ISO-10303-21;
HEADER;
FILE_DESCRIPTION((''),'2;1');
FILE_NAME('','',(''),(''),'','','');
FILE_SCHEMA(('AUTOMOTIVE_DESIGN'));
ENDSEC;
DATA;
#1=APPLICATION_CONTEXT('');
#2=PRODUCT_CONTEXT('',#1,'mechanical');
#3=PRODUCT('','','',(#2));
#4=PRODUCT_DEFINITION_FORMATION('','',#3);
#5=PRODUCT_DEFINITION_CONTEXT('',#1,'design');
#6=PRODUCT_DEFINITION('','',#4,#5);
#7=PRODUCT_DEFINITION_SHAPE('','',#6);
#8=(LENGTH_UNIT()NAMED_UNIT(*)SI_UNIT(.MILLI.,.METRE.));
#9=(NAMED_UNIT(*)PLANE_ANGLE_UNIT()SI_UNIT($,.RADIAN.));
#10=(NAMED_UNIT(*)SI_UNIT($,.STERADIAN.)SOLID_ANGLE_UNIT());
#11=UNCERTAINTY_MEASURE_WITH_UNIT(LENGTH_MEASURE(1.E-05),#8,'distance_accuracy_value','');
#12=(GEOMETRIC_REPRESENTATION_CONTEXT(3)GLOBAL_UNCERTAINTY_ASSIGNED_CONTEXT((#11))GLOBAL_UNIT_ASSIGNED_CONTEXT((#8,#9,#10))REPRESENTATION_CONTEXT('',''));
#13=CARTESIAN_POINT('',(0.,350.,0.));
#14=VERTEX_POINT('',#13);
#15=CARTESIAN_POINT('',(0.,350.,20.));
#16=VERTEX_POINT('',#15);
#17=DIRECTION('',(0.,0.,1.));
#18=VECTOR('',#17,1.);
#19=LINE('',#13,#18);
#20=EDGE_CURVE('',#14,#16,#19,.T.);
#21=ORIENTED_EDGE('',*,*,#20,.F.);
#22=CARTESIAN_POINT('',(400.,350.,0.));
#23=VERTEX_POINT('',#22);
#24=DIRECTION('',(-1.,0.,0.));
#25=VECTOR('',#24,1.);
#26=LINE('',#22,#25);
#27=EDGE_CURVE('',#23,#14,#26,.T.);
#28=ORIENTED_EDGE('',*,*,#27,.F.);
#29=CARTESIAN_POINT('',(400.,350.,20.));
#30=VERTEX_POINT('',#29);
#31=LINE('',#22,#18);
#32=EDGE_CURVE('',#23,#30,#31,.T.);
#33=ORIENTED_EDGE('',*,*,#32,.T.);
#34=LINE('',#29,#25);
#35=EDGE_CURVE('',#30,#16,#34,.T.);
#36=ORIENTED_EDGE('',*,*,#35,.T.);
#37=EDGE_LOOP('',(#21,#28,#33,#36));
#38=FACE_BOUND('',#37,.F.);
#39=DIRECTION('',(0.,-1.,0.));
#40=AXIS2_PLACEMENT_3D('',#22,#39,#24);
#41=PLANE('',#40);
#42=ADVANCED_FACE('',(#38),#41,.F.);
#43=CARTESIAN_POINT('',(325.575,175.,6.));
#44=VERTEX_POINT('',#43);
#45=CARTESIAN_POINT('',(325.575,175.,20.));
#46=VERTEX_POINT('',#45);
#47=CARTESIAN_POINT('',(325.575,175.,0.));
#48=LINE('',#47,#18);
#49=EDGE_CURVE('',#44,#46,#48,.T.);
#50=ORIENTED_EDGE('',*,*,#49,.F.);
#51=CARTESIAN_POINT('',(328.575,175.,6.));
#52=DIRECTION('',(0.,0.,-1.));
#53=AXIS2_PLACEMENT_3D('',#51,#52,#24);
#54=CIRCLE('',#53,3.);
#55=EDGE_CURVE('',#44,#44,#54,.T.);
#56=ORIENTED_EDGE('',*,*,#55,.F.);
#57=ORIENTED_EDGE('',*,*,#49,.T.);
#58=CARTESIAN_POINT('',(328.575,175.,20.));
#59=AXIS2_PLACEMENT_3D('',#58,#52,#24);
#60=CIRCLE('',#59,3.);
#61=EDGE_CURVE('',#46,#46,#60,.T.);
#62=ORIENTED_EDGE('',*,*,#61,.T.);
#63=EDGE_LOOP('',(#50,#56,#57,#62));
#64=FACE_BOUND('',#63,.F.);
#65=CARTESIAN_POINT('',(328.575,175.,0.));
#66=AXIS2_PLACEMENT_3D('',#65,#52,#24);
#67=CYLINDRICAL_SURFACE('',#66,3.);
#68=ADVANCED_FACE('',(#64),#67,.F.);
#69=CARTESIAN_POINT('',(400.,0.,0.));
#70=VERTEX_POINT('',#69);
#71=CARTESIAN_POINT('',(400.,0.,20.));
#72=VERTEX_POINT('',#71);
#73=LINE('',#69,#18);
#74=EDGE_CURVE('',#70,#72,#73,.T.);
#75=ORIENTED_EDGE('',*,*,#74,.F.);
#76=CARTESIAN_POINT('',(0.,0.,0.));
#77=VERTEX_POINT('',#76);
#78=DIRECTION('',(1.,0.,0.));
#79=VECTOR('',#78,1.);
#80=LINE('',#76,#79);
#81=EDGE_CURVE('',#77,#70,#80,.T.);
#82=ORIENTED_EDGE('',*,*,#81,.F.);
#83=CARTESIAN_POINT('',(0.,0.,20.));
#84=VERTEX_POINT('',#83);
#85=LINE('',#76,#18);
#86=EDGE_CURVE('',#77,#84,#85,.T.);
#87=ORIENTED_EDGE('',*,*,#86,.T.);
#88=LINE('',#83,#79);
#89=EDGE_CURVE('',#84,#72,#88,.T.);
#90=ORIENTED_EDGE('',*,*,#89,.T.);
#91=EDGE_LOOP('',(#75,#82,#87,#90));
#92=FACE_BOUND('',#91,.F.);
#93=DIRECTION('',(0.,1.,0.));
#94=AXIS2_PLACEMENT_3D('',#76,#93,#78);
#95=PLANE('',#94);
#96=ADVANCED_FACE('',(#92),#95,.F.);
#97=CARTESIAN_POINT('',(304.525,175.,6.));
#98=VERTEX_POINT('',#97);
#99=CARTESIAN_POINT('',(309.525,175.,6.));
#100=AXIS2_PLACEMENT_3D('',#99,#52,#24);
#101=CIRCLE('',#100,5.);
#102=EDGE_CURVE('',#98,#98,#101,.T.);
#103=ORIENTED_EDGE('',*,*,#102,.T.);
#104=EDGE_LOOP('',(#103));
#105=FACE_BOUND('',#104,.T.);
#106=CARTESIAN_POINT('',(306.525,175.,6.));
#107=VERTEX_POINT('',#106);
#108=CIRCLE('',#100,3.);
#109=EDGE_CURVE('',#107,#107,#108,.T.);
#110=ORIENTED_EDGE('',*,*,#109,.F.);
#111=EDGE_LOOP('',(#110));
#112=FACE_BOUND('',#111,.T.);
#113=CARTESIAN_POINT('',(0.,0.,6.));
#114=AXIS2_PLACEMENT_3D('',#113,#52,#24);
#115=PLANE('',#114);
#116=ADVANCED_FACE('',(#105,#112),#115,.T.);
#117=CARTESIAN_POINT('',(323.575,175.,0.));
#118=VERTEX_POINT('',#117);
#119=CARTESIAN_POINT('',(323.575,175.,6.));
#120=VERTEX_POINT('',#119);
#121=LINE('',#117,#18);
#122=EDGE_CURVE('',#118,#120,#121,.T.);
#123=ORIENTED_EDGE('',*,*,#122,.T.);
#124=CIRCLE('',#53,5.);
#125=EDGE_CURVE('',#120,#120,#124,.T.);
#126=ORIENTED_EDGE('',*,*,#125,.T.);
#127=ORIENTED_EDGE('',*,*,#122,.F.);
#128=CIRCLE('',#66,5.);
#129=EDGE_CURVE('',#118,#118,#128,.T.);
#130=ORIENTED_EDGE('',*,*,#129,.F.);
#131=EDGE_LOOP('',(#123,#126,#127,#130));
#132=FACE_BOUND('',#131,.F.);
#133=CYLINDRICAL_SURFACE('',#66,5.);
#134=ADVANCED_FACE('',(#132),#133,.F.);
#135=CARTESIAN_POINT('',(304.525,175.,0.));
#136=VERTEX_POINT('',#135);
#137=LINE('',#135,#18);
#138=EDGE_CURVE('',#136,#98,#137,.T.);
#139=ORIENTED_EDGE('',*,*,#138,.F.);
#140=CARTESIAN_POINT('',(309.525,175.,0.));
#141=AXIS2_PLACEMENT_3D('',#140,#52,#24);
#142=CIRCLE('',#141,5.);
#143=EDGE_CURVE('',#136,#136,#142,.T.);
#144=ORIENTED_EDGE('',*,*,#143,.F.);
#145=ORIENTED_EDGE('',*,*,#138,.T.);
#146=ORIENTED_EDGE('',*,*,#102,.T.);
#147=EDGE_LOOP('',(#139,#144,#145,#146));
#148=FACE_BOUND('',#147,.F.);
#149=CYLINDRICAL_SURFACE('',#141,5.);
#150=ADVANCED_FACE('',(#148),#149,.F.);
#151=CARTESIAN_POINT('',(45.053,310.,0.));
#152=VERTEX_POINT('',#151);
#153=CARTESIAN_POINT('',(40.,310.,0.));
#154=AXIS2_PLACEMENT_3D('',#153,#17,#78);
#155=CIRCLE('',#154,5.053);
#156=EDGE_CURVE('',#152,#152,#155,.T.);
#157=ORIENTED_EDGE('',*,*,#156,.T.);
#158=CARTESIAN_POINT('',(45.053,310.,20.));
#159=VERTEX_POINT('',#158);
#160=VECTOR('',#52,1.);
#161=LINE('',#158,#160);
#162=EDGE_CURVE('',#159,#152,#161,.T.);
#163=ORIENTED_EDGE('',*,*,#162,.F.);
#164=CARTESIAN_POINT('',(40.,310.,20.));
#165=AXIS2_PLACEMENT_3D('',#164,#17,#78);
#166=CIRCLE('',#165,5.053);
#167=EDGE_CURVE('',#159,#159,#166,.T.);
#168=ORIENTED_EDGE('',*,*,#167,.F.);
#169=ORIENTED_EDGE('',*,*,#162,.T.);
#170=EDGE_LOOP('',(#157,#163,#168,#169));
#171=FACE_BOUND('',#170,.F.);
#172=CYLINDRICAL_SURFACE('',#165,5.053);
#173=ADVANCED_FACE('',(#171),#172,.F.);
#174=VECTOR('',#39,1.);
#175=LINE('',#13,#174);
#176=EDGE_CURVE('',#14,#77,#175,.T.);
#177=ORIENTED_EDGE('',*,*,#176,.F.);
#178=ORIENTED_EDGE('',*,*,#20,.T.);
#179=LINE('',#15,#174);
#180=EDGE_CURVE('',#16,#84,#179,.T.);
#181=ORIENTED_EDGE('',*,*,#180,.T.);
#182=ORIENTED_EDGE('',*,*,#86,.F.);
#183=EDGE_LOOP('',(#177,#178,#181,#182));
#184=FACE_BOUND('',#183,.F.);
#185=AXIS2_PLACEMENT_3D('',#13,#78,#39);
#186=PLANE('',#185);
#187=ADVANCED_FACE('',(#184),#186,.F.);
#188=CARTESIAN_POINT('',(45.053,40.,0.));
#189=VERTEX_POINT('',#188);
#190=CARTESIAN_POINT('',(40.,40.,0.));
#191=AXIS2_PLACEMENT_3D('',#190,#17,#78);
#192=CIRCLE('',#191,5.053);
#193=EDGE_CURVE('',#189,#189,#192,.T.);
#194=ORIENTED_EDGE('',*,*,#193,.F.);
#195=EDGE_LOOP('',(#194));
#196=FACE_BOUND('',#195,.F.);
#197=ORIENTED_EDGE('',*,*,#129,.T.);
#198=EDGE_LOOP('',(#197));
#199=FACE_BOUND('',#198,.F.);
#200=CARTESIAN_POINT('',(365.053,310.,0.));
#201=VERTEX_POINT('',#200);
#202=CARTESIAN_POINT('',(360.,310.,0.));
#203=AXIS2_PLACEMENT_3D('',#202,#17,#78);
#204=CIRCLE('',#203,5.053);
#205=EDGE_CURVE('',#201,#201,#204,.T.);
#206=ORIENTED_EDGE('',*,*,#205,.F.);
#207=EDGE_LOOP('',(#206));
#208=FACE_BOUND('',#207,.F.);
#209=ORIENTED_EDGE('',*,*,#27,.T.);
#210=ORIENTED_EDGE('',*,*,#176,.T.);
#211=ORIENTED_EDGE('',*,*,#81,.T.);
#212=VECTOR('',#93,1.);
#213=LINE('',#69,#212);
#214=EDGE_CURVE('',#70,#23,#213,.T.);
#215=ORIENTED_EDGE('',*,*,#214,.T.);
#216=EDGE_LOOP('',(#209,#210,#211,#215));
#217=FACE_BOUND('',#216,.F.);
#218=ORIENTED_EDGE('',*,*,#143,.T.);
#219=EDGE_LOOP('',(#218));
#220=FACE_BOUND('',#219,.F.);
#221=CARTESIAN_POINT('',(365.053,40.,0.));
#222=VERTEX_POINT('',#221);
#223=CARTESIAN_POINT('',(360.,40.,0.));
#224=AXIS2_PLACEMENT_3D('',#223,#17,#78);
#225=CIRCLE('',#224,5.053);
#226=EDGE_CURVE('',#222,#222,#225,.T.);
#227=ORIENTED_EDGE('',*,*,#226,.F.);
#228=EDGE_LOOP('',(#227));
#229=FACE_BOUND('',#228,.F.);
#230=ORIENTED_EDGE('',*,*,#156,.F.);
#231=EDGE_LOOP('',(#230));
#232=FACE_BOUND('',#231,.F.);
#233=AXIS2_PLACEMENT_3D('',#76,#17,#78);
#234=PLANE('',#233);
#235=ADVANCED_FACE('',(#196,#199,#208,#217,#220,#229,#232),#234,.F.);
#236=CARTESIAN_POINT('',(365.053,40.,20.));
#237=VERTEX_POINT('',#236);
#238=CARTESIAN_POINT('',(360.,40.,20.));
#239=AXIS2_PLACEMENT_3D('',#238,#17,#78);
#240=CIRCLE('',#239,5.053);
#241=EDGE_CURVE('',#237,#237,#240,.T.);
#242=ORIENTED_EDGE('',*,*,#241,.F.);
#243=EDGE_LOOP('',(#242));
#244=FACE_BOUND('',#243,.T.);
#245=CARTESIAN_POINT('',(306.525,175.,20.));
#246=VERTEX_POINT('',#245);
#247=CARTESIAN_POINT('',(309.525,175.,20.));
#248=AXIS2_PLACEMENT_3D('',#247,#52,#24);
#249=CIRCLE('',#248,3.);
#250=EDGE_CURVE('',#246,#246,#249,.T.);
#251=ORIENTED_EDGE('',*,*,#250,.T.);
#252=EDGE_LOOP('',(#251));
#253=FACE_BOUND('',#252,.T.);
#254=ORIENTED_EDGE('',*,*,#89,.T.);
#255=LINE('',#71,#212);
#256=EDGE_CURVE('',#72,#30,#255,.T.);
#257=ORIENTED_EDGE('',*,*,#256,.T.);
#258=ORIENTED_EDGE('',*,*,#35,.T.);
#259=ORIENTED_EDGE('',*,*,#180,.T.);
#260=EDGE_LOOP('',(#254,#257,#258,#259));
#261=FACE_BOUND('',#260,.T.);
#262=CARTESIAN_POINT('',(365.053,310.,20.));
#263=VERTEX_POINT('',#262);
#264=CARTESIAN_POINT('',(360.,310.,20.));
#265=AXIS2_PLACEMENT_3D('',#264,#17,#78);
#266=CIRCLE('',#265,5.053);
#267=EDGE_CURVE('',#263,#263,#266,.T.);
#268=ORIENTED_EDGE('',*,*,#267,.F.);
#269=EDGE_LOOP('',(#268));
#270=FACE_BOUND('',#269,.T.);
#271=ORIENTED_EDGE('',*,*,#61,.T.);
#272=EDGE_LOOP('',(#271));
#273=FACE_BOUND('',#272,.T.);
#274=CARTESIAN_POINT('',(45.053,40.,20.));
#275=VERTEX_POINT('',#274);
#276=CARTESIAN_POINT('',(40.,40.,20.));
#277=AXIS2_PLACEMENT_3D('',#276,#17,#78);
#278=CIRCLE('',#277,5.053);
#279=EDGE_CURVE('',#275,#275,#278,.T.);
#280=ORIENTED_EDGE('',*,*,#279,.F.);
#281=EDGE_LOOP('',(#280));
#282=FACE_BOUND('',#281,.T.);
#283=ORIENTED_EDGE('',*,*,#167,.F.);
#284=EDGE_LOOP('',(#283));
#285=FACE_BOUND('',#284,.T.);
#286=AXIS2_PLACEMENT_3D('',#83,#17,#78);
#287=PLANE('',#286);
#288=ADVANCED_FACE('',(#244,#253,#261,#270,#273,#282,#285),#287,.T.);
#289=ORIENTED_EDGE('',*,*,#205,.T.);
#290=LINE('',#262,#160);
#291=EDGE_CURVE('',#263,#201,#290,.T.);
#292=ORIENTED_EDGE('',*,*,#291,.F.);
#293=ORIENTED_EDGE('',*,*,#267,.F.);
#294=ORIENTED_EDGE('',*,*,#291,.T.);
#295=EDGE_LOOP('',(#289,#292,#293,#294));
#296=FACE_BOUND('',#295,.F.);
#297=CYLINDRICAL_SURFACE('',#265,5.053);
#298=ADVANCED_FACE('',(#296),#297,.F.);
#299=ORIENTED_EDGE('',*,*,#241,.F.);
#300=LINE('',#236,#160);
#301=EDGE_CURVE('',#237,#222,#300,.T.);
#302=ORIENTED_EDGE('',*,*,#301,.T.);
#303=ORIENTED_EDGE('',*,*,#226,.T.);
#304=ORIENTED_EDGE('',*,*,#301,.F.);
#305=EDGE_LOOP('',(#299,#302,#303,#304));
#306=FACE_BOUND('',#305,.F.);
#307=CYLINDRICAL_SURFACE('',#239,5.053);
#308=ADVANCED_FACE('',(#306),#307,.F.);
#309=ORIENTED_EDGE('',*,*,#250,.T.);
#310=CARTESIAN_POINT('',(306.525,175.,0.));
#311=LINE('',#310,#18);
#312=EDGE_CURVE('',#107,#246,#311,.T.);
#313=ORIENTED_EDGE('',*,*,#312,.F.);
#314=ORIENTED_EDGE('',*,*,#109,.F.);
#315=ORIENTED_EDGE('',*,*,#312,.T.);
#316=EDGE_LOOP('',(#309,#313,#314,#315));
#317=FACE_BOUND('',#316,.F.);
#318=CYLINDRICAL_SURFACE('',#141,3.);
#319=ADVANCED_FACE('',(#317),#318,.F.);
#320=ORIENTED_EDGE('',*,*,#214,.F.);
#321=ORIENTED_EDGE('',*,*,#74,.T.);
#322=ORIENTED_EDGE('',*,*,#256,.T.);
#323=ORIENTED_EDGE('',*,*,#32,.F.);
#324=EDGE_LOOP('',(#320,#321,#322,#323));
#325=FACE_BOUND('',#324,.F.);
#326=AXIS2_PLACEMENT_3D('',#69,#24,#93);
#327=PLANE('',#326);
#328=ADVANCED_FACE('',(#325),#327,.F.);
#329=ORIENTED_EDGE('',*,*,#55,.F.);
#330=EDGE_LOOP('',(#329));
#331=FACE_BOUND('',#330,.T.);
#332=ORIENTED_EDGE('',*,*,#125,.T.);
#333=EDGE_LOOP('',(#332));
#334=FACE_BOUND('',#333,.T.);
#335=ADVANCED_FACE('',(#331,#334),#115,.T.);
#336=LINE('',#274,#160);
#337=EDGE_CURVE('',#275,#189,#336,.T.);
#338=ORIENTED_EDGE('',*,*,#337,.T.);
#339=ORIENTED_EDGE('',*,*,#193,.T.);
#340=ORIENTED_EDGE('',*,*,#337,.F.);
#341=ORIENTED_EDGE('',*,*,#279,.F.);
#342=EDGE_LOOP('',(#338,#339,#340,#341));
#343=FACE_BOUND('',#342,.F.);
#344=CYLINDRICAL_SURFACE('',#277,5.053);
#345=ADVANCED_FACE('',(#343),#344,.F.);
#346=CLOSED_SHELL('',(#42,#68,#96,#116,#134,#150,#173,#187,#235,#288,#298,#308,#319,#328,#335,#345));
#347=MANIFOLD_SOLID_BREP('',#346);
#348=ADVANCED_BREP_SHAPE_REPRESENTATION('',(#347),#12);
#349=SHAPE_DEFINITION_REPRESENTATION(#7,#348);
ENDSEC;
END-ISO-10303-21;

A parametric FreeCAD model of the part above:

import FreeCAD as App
import Part
import Sketcher
from FreeCAD import Vector
Q = App.Units.Quantity


def add_polygon(sketch, points):
    """Adds a closed chain of lines whose ends are joined by coincident constraints."""
    first, n = sketch.GeometryCount, len(points)
    for a, b in zip(points, points[1:] + points[:1]):
        sketch.addGeometry(Part.LineSegment(App.Vector(*a, 0), App.Vector(*b, 0)), False)
    for i in range(n):
        sketch.addConstraint(Sketcher.Constraint("Coincident", first + i, 2, first + (i + 1) % n, 1))

doc = App.newDocument("Part")
params = doc.addObject("Spreadsheet::Sheet", "Params")
for row, (alias, value) in enumerate([
    ("sketch1_width", "400 mm"),
    ("sketch1_height", "350 mm"),
    ("pad1_length", "20 mm"),
    ("pocket1_length", "20 mm"),
    ("sketch3_diameter", "6 mm"),
    ("pocket2_length", "20 mm"),
    ("sketch4_diameter", "10 mm"),
    ("sketch4_diameter2", "6 mm"),
    ("pocket3_length", "6 mm"),
], start=1):
    params.set(f"A{row}", alias)
    params.set(f"B{row}", "=" + value)
    params.setAlias(f"B{row}", alias)

body = doc.addObject("PartDesign::Body", "Body")

# Sketch on XY plane
sketch1 = body.newObject("Sketcher::SketchObject", "Sketch")
sketch1.AttachmentSupport = (doc.getObject("XY_Plane"), [""])
sketch1.MapMode = "FlatFace"
add_polygon(sketch1, [(0, 350), (0, 0), (400, 0), (400, 350)])  # lines 0-3
sketch1.addConstraint([
    Sketcher.Constraint("Vertical", 0),
    Sketcher.Constraint("Horizontal", 1),
    Sketcher.Constraint("Vertical", 2),
    Sketcher.Constraint("Horizontal", 3),
    Sketcher.Constraint("Coincident", 0, 2, -1, 1),
    Sketcher.Constraint("DistanceX", 1, 1, 1, 2, Q("400 mm")),
    Sketcher.Constraint("DistanceY", 0, 2, 0, 1, Q("350 mm")),
])
sketch1.setExpression("Constraints[9]", "Params.sketch1_width")
sketch1.setExpression("Constraints[10]", "Params.sketch1_height")
pad1 = body.newObject("PartDesign::Pad", "Pad")
pad1.Profile = sketch1
pad1.setExpression("Length", "Params.pad1_length")

# Sketch on XY plane
sketch2 = body.newObject("Sketcher::SketchObject", "Sketch001")
sketch2.AttachmentSupport = (doc.getObject("XY_Plane"), [""])
sketch2.MapMode = "FlatFace"
sketch2.AttachmentOffset = App.Placement(Vector(0, 0, 20), App.Rotation())
sketch2.addGeometry([
    Part.Circle(Vector(40, 40, 0), Vector(0, 0, 1), 5),
    Part.Circle(Vector(40, 310, 0), Vector(0, 0, 1), 5),
    Part.Circle(Vector(360, 40, 0), Vector(0, 0, 1), 5),
    Part.Circle(Vector(360, 310, 0), Vector(0, 0, 1), 5),
], False)
sketch2.addConstraint([
    Sketcher.Constraint("Equal", 0, 1),
    Sketcher.Constraint("Equal", 1, 2),
    Sketcher.Constraint("Equal", 2, 3),
    Sketcher.Constraint("Horizontal", 0, 3, 2, 3),
    Sketcher.Constraint("Horizontal", 1, 3, 3, 3),
    Sketcher.Constraint("Vertical", 0, 3, 1, 3),
    Sketcher.Constraint("Vertical", 2, 3, 3, 3),
    Sketcher.Constraint("Diameter", 0, Q("10.106 mm")),
    Sketcher.Constraint("DistanceX", -1, 1, 0, 3, Q("40 mm")),
    Sketcher.Constraint("DistanceY", -1, 1, 0, 3, Q("40 mm")),
    Sketcher.Constraint("DistanceY", -1, 1, 1, 3, Q("310 mm")),
    Sketcher.Constraint("DistanceX", -1, 1, 2, 3, Q("360 mm")),
])
pocket1 = body.newObject("PartDesign::Pocket", "Pocket")
pocket1.Profile = sketch2
pocket1.setExpression("Length", "Params.pocket1_length")

# Sketch on XY plane
sketch3 = body.newObject("Sketcher::SketchObject", "Sketch002")
sketch3.AttachmentSupport = (doc.getObject("XY_Plane"), [""])
sketch3.MapMode = "FlatFace"
sketch3.addGeometry([
    Part.Circle(Vector(309.5, 175, 0), Vector(0, 0, 1), 3),
    Part.Circle(Vector(328.6, 175, 0), Vector(0, 0, 1), 3),
], False)
sketch3.addConstraint([
    Sketcher.Constraint("Equal", 0, 1),
    Sketcher.Constraint("Horizontal", 0, 3, 1, 3),
    Sketcher.Constraint("Diameter", 0, Q("6 mm")),
    Sketcher.Constraint("DistanceY", -1, 1, 0, 3, Q("175 mm")),
    Sketcher.Constraint("DistanceX", 0, 3, 1, 3, Q("19.05 mm")),
    Sketcher.Constraint("DistanceX", -1, 1, 0, 3, Q("309.525 mm")),
])
sketch3.setExpression("Constraints[2]", "Params.sketch3_diameter")
pocket2 = body.newObject("PartDesign::Pocket", "Pocket001")
pocket2.Profile = sketch3
pocket2.setExpression("Length", "Params.pocket2_length")
pocket2.Reversed = True

# Sketch on XY plane
sketch4 = body.newObject("Sketcher::SketchObject", "Sketch003")
sketch4.AttachmentSupport = (doc.getObject("XY_Plane"), [""])
sketch4.MapMode = "FlatFace"
sketch4.addGeometry([
    Part.Circle(Vector(309.5, 175, 0), Vector(0, 0, 1), 5),
    Part.Circle(Vector(309.5, 175, 0), Vector(0, 0, 1), 3),
    Part.Circle(Vector(328.6, 175, 0), Vector(0, 0, 1), 5),
    Part.Circle(Vector(328.6, 175, 0), Vector(0, 0, 1), 3),
], False)
sketch4.addConstraint([
    Sketcher.Constraint("Coincident", 1, 3, 0, 3),
    Sketcher.Constraint("Coincident", 3, 3, 2, 3),
    Sketcher.Constraint("Equal", 0, 2),
    Sketcher.Constraint("Equal", 1, 3),
    Sketcher.Constraint("Horizontal", 1, 3, 2, 3),
    Sketcher.Constraint("Diameter", 0, Q("10 mm")),
    Sketcher.Constraint("Diameter", 1, Q("6 mm")),
    Sketcher.Constraint("DistanceY", -1, 1, 0, 3, Q("175 mm")),
    Sketcher.Constraint("DistanceX", 0, 3, 2, 3, Q("19.05 mm")),
    Sketcher.Constraint("DistanceX", -1, 1, 0, 3, Q("309.525 mm")),
])
sketch4.setExpression("Constraints[5]", "Params.sketch4_diameter")
sketch4.setExpression("Constraints[6]", "Params.sketch4_diameter2")
pocket3 = body.newObject("PartDesign::Pocket", "Pocket002")
pocket3.Profile = sketch4
pocket3.setExpression("Length", "Params.pocket3_length")
pocket3.Reversed = True

doc.recompute()
